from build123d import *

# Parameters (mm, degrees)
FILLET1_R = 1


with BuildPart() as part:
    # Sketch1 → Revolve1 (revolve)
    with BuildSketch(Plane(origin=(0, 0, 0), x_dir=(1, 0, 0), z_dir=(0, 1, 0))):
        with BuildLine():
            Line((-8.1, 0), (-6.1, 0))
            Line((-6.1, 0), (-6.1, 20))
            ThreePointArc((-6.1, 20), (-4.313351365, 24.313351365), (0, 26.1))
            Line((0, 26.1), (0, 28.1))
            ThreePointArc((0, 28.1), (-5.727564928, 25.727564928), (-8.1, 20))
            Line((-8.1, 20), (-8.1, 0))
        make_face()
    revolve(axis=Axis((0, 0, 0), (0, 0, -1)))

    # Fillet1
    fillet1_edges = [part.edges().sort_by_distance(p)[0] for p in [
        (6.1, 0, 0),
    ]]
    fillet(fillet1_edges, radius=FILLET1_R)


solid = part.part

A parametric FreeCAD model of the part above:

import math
import FreeCAD as App
import Part
import Sketcher
from FreeCAD import Vector
Q = App.Units.Quantity


def edges_at(feature, points):
    """Names of the edges that pass closest to the given points."""
    edges = feature.Shape.Edges
    near = lambda p: min(range(len(edges)), key=lambda i: edges[i].distToShape(Part.Vertex(*p))[0])
    return sorted({f"Edge{near(p) + 1}" for p in points})

doc = App.newDocument("Part")
params = doc.addObject("Spreadsheet::Sheet", "Params")
for row, (alias, value) in enumerate([
    ("sketch1_radius", "6.1 mm"),
    ("sketch1_radius2", "8.1 mm"),
    ("sketch1_height", "20 mm"),
    ("revolution_angle", "360 deg"),
    ("fillet_radius", "1 mm"),
], start=1):
    params.set(f"A{row}", alias)
    params.set(f"B{row}", "=" + value)
    params.setAlias(f"B{row}", alias)

body = doc.addObject("PartDesign::Body", "Body")

sketch1 = doc.addObject("Sketcher::SketchObject", "Sketch")
body.addObject(sketch1)
sketch1.AttachmentSupport = (doc.XZ_Plane, [""])
sketch1.MapMode = "FlatFace"
sketch1.addGeometry([
    Part.LineSegment(Vector(-8.1, 0, 0), Vector(-6.1, 0, 0)),
    Part.LineSegment(Vector(-6.1, 0, 0), Vector(-6.1, -20, 0)),
    Part.ArcOfCircle(Part.Circle(Vector(0, -20, 0), Vector(0, 0, 1), 6.1), math.radians(-180), math.radians(-90)),
    Part.LineSegment(Vector(0, -26.1, 0), Vector(0, -28.1, 0)),
    Part.ArcOfCircle(Part.Circle(Vector(0, -20, 0), Vector(0, 0, 1), 8.1), math.radians(180), math.radians(270)),
    Part.LineSegment(Vector(-8.1, -20, 0), Vector(-8.1, 0, 0)),
], False)
sketch1.addConstraint([
    Sketcher.Constraint("Coincident", 0, 2, 1, 1),
    Sketcher.Constraint("Tangent", 1, 2, 2, 1),
    Sketcher.Constraint("Coincident", 2, 2, 3, 1),
    Sketcher.Constraint("Coincident", 3, 2, 4, 2),
    Sketcher.Constraint("Tangent", 4, 1, 5, 1),
    Sketcher.Constraint("Coincident", 5, 2, 0, 1),
    Sketcher.Constraint("Horizontal", 0),
    Sketcher.Constraint("Vertical", 1),
    Sketcher.Constraint("Vertical", 3),
    Sketcher.Constraint("Vertical", 5),
    Sketcher.Constraint("Coincident", 4, 3, 2, 3),
    Sketcher.Constraint("PointOnObject", 2, 3, -2),
    Sketcher.Constraint("PointOnObject", 0, 2, -1),
    Sketcher.Constraint("PointOnObject", 2, 2, -2),
    Sketcher.Constraint("Radius", 2, Q("6.1 mm")),
    Sketcher.Constraint("Radius", 4, Q("8.1 mm")),
    Sketcher.Constraint("DistanceY", 1, 2, 1, 1, Q("20 mm")),
])
sketch1.setExpression("Constraints[14]", "Params.sketch1_radius")
sketch1.setExpression("Constraints[15]", "Params.sketch1_radius2")
sketch1.setExpression("Constraints[16]", "Params.sketch1_height")
revolution = doc.addObject("PartDesign::Revolution", "Revolution")
body.addObject(revolution)
revolution.Profile = sketch1
revolution.ReferenceAxis = (sketch1, ["V_Axis"])
revolution.setExpression("Angle", "Params.revolution_angle")
doc.recompute()

fillet = doc.addObject("PartDesign::Fillet", "Fillet")
body.addObject(fillet)
fillet.Base = (revolution, edges_at(revolution, [(6.1, 0, 0)]))
fillet.setExpression("Radius", "Params.fillet_radius")

doc.recompute()
